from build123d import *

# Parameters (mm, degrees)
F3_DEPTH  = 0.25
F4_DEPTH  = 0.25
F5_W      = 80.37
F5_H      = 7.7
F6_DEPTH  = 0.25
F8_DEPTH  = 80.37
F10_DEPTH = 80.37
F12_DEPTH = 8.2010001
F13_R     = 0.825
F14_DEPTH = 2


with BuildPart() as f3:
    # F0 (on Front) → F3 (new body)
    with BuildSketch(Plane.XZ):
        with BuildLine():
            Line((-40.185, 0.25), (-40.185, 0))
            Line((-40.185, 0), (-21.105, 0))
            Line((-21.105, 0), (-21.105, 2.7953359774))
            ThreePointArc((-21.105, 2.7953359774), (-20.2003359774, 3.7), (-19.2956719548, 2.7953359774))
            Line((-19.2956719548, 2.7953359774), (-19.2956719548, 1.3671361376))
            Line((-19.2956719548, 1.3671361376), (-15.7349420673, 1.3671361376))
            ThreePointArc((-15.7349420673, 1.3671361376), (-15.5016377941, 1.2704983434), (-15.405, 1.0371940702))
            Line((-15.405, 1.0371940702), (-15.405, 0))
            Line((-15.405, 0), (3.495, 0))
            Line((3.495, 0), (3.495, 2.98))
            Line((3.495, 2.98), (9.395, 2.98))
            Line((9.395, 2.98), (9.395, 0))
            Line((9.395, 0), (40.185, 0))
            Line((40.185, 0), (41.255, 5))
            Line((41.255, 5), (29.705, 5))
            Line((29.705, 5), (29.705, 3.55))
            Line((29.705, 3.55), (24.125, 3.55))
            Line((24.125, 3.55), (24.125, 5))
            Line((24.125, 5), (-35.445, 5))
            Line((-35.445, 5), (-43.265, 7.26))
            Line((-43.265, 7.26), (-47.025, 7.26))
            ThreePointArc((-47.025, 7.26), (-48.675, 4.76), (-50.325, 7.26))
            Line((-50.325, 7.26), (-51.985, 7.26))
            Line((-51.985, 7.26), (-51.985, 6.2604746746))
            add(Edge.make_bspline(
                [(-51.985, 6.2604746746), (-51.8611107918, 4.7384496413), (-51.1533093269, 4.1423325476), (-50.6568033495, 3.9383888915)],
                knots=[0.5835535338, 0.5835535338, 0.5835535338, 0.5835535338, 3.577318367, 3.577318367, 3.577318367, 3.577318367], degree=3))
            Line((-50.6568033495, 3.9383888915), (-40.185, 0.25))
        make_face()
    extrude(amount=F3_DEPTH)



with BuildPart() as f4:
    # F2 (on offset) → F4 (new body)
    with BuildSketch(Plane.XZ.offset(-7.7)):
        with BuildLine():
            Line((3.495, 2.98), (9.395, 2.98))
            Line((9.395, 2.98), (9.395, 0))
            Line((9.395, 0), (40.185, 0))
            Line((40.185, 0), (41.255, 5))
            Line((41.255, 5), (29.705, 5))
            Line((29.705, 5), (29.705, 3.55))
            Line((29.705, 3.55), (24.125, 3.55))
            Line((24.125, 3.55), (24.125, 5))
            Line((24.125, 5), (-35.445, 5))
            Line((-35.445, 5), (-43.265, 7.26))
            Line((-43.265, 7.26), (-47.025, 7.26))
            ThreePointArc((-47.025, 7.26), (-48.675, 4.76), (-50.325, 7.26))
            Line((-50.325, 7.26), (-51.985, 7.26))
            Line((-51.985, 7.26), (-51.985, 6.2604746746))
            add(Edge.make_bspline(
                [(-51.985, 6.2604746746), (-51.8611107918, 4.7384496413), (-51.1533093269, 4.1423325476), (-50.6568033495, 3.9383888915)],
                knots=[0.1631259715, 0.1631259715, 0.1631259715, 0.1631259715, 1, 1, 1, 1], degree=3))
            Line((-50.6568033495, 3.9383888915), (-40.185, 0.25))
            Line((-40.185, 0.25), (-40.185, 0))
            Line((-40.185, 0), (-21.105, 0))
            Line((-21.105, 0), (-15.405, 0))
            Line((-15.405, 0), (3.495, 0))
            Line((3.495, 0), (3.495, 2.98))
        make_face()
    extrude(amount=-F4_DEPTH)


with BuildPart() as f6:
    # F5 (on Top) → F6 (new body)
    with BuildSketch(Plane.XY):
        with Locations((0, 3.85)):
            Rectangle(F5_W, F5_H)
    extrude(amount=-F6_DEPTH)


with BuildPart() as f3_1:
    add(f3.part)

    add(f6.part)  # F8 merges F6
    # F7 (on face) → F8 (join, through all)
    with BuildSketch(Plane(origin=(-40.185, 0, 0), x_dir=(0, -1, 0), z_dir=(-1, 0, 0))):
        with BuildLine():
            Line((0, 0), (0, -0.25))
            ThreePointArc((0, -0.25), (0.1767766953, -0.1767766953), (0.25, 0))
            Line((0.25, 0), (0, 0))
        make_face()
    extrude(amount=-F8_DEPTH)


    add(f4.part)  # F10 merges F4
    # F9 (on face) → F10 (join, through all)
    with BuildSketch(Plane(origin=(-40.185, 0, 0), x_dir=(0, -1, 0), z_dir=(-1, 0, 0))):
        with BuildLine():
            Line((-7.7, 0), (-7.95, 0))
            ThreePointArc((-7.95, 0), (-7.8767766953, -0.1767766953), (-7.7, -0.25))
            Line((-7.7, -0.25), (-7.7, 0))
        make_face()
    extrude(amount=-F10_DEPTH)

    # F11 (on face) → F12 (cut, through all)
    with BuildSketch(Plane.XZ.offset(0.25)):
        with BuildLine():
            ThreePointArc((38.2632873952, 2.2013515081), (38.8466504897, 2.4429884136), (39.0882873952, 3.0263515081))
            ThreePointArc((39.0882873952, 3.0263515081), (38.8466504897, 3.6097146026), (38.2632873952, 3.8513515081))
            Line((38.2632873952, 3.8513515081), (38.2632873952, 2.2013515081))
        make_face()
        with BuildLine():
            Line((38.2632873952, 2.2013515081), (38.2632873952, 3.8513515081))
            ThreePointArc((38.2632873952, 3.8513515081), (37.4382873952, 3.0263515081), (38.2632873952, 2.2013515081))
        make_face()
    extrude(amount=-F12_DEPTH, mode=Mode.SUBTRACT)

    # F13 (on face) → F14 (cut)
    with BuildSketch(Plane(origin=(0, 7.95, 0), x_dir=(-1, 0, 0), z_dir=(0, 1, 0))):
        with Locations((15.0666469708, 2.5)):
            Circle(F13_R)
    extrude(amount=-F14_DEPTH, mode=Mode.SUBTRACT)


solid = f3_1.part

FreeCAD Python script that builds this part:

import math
import FreeCAD as App
import Part
import Sketcher
Q = App.Units.Quantity


def add_polygon(sketch, points):
    """Adds a closed chain of lines whose ends are joined by coincident constraints."""
    first, n = sketch.GeometryCount, len(points)
    for a, b in zip(points, points[1:] + points[:1]):
        sketch.addGeometry(Part.LineSegment(App.Vector(*a, 0), App.Vector(*b, 0)), False)
    for i in range(n):
        sketch.addConstraint(Sketcher.Constraint("Coincident", first + i, 2, first + (i + 1) % n, 1))

doc = App.newDocument("Part")
body = doc.addObject("PartDesign::Body", "Body")

# Sketch on XZ plane
sketch1 = body.newObject("Sketcher::SketchObject", "Sketch")
sketch1.AttachmentSupport = (doc.getObject("XZ_Plane"), [""])
sketch1.MapMode = "FlatFace"
sketch1.addGeometry(Part.LineSegment(App.Vector(-40.185, 0.25, 0), App.Vector(-40.185, 0, 0)), False)
sketch1.addGeometry(Part.LineSegment(App.Vector(-40.185, 0, 0), App.Vector(-21.105, 0, 0)), False)
sketch1.addGeometry(Part.LineSegment(App.Vector(-21.105, 0, 0), App.Vector(-21.105, 2.795336, 0)), False)
sketch1.addGeometry(Part.ArcOfCircle(Part.Circle(App.Vector(-20.200336, 2.795336, 0), App.Vector(0, 0, 1), 0.904664), math.radians(0), math.radians(180)), False)
sketch1.addGeometry(Part.LineSegment(App.Vector(-19.295672, 2.795336, 0), App.Vector(-19.295672, 1.367136, 0)), False)
sketch1.addGeometry(Part.LineSegment(App.Vector(-19.295672, 1.367136, 0), App.Vector(-15.734942, 1.367136, 0)), False)
sketch1.addGeometry(Part.ArcOfCircle(Part.Circle(App.Vector(-15.734942, 1.037194, 0), App.Vector(0, 0, 1), 0.329942), math.radians(0), math.radians(90)), False)
sketch1.addGeometry(Part.LineSegment(App.Vector(-15.405, 1.037194, 0), App.Vector(-15.405, 0, 0)), False)
sketch1.addGeometry(Part.LineSegment(App.Vector(-15.405, 0, 0), App.Vector(3.495, 0, 0)), False)
sketch1.addGeometry(Part.LineSegment(App.Vector(3.495, 0, 0), App.Vector(3.495, 2.98, 0)), False)
sketch1.addGeometry(Part.LineSegment(App.Vector(3.495, 2.98, 0), App.Vector(9.395, 2.98, 0)), False)
sketch1.addGeometry(Part.LineSegment(App.Vector(9.395, 2.98, 0), App.Vector(9.395, 0, 0)), False)
sketch1.addGeometry(Part.LineSegment(App.Vector(9.395, 0, 0), App.Vector(40.185, 0, 0)), False)
sketch1.addGeometry(Part.LineSegment(App.Vector(40.185, 0, 0), App.Vector(41.255, 5, 0)), False)
sketch1.addGeometry(Part.LineSegment(App.Vector(41.255, 5, 0), App.Vector(29.705, 5, 0)), False)
sketch1.addGeometry(Part.LineSegment(App.Vector(29.705, 5, 0), App.Vector(29.705, 3.55, 0)), False)
sketch1.addGeometry(Part.LineSegment(App.Vector(29.705, 3.55, 0), App.Vector(24.125, 3.55, 0)), False)
sketch1.addGeometry(Part.LineSegment(App.Vector(24.125, 3.55, 0), App.Vector(24.125, 5, 0)), False)
sketch1.addGeometry(Part.LineSegment(App.Vector(24.125, 5, 0), App.Vector(-35.445, 5, 0)), False)
sketch1.addGeometry(Part.LineSegment(App.Vector(-35.445, 5, 0), App.Vector(-43.265, 7.26, 0)), False)
sketch1.addGeometry(Part.LineSegment(App.Vector(-43.265, 7.26, 0), App.Vector(-47.025, 7.26, 0)), False)
sketch1.addGeometry(Part.ArcOfCircle(Part.Circle(App.Vector(-48.675, 6.5545, 0), App.Vector(0, 0, 1), 1.7945), math.radians(156.849622), math.radians(383.150378)), False)
sketch1.addGeometry(Part.LineSegment(App.Vector(-50.325, 7.26, 0), App.Vector(-51.985, 7.26, 0)), False)
sketch1.addGeometry(Part.LineSegment(App.Vector(-51.985, 7.26, 0), App.Vector(-51.985, 6.260475, 0)), False)
sketch1.addGeometry(Part.BSplineCurve([App.Vector(-51.985, 6.260475, 0), App.Vector(-51.861111, 4.73845, 0), App.Vector(-51.153309, 4.142333, 0), App.Vector(-50.656803, 3.938389, 0)], [4, 4], [0.583553534, 3.577318367], False, 3, [1, 1, 1, 1], False), False)
sketch1.addGeometry(Part.LineSegment(App.Vector(-50.656803, 3.938389, 0), App.Vector(-40.185, 0.25, 0)), False)
sketch1.addConstraint(Sketcher.Constraint("Block", 24))
sketch1.addConstraint(Sketcher.Constraint("Coincident", 0, 2, 1, 1))
sketch1.addConstraint(Sketcher.Constraint("Coincident", 1, 2, 2, 1))
sketch1.addConstraint(Sketcher.Constraint("Tangent", 2, 2, 3, 2))
sketch1.addConstraint(Sketcher.Constraint("Tangent", 3, 1, 4, 1))
sketch1.addConstraint(Sketcher.Constraint("Coincident", 4, 2, 5, 1))
sketch1.addConstraint(Sketcher.Constraint("Tangent", 5, 2, 6, 2))
sketch1.addConstraint(Sketcher.Constraint("Tangent", 6, 1, 7, 1))
sketch1.addConstraint(Sketcher.Constraint("Coincident", 7, 2, 8, 1))
sketch1.addConstraint(Sketcher.Constraint("Coincident", 8, 2, 9, 1))
sketch1.addConstraint(Sketcher.Constraint("Coincident", 9, 2, 10, 1))
sketch1.addConstraint(Sketcher.Constraint("Coincident", 10, 2, 11, 1))
sketch1.addConstraint(Sketcher.Constraint("Coincident", 11, 2, 12, 1))
sketch1.addConstraint(Sketcher.Constraint("Coincident", 12, 2, 13, 1))
sketch1.addConstraint(Sketcher.Constraint("Coincident", 13, 2, 14, 1))
sketch1.addConstraint(Sketcher.Constraint("Coincident", 14, 2, 15, 1))
sketch1.addConstraint(Sketcher.Constraint("Coincident", 15, 2, 16, 1))
sketch1.addConstraint(Sketcher.Constraint("Coincident", 16, 2, 17, 1))
sketch1.addConstraint(Sketcher.Constraint("Coincident", 17, 2, 18, 1))
sketch1.addConstraint(Sketcher.Constraint("Coincident", 18, 2, 19, 1))
sketch1.addConstraint(Sketcher.Constraint("Coincident", 19, 2, 20, 1))
sketch1.addConstraint(Sketcher.Constraint("Coincident", 20, 2, 21, 2))
sketch1.addConstraint(Sketcher.Constraint("Coincident", 21, 1, 22, 1))
sketch1.addConstraint(Sketcher.Constraint("Coincident", 22, 2, 23, 1))
sketch1.addConstraint(Sketcher.Constraint("Coincident", 23, 2, 24, 1))
sketch1.addConstraint(Sketcher.Constraint("Coincident", 24, 2, 25, 1))
sketch1.addConstraint(Sketcher.Constraint("Coincident", 25, 2, 0, 1))
sketch1.addConstraint(Sketcher.Constraint("Vertical", 0))
sketch1.addConstraint(Sketcher.Constraint("Horizontal", 1))
sketch1.addConstraint(Sketcher.Constraint("Vertical", 2))
sketch1.addConstraint(Sketcher.Constraint("Vertical", 4))
sketch1.addConstraint(Sketcher.Constraint("Horizontal", 5))
sketch1.addConstraint(Sketcher.Constraint("Vertical", 7))
sketch1.addConstraint(Sketcher.Constraint("Horizontal", 8))
sketch1.addConstraint(Sketcher.Constraint("Vertical", 9))
sketch1.addConstraint(Sketcher.Constraint("Horizontal", 10))
sketch1.addConstraint(Sketcher.Constraint("Vertical", 11))
sketch1.addConstraint(Sketcher.Constraint("Horizontal", 12))
sketch1.addConstraint(Sketcher.Constraint("Horizontal", 14))
sketch1.addConstraint(Sketcher.Constraint("Vertical", 15))
sketch1.addConstraint(Sketcher.Constraint("Horizontal", 16))
sketch1.addConstraint(Sketcher.Constraint("Vertical", 17))
sketch1.addConstraint(Sketcher.Constraint("Horizontal", 18))
sketch1.addConstraint(Sketcher.Constraint("Horizontal", 20))
sketch1.addConstraint(Sketcher.Constraint("Horizontal", 22))
sketch1.addConstraint(Sketcher.Constraint("Vertical", 23))
sketch1.addConstraint(Sketcher.Constraint("Symmetric", 0, 2, 12, 2, -1, 1))
sketch1.addConstraint(Sketcher.Constraint("PointOnObject", 0, 2, -1))
sketch1.addConstraint(Sketcher.Constraint("PointOnObject", 7, 2, -1))
sketch1.addConstraint(Sketcher.Constraint("Horizontal", 14, 2, 17, 2))
sketch1.addConstraint(Sketcher.Constraint("Horizontal", 20, 2, 21, 1))
sketch1.addConstraint(Sketcher.Constraint("DistanceX", 8, 1, 8, 2, Q("18.9 mm")))
sketch1.addConstraint(Sketcher.Constraint("DistanceX", 10, 1, 10, 2, Q("5.9 mm")))
sketch1.addConstraint(Sketcher.Constraint("DistanceY", -1, 1, 13, 2, Q("5 mm")))
sketch1.addConstraint(Sketcher.Constraint("DistanceX", 1, 1, 1, 2, Q("19.08 mm")))
sketch1.addConstraint(Sketcher.Constraint("DistanceX", 12, 1, 12, 2, Q("30.79 mm")))
sketch1.addConstraint(Sketcher.Constraint("DistanceX", 14, 2, 14, 1, Q("11.55 mm")))
sketch1.addConstraint(Sketcher.Constraint("DistanceX", 16, 2, 16, 1, Q("5.58 mm")))
sketch1.addConstraint(Sketcher.Constraint("DistanceX", 18, 2, 18, 1, Q("59.57 mm")))
sketch1.addConstraint(Sketcher.Constraint("DistanceX", 20, 2, 20, 1, Q("3.76 mm")))
sketch1.addConstraint(Sketcher.Constraint("DistanceX", 22, 2, 22, 1, Q("1.66 mm")))
sketch1.addConstraint(Sketcher.Constraint("DistanceY", 0, 2, 0, 1, Q("0.25 mm")))
sketch1.addConstraint(Sketcher.Constraint("DistanceY", 9, 1, 9, 2, Q("2.98 mm")))
sketch1.addConstraint(Sketcher.Constraint("DistanceY", 15, 2, 15, 1, Q("1.45 mm")))
sketch1.addConstraint(Sketcher.Constraint("Radius", 21, Q("1.7945 mm")))
sketch1.addConstraint(Sketcher.Constraint("DistanceX", 21, 1, 20, 2, Q("3.3 mm")))
sketch1.addConstraint(Sketcher.Constraint("DistanceX", 22, 2, 0, 2, Q("11.8 mm")))
sketch1.addConstraint(Sketcher.Constraint("DistanceY", -1, 1, 19, 2, Q("7.26 mm")))
sketch1.addConstraint(Sketcher.Constraint("DistanceX", 12, 2, 13, 2, Q("1.07 mm")))
sketch1.addConstraint(Sketcher.Constraint("DistanceY", 4, 2, 4, 1, Q("1.4282 mm")))
sketch1.addConstraint(Sketcher.Constraint("Radius", 3, Q("0.904664 mm")))
sketch1.addConstraint(Sketcher.Constraint("Radius", 6, Q("0.329942 mm")))
sketch1.addConstraint(Sketcher.Constraint("DistanceY", 2, 1, 2, 2, Q("2.795336 mm")))
pad1 = body.newObject("PartDesign::Pad", "Pad")
pad1.Profile = sketch1
pad1.Length = 0.25
body2 = doc.addObject("PartDesign::Body", "Body001")

# Sketch on XZ plane
sketch2 = body2.newObject("Sketcher::SketchObject", "Sketch001")
sketch2.AttachmentSupport = (doc.getObject("XZ_Plane001"), [""])
sketch2.MapMode = "FlatFace"
sketch2.AttachmentOffset = App.Placement(App.Vector(0, 0, -7.7), App.Rotation())
sketch2.addGeometry(Part.LineSegment(App.Vector(3.495, 2.98, 0), App.Vector(9.395, 2.98, 0)), False)
sketch2.addGeometry(Part.LineSegment(App.Vector(9.395, 2.98, 0), App.Vector(9.395, 0, 0)), False)
sketch2.addGeometry(Part.LineSegment(App.Vector(9.395, 0, 0), App.Vector(40.185, 0, 0)), False)
sketch2.addGeometry(Part.LineSegment(App.Vector(40.185, 0, 0), App.Vector(41.255, 5, 0)), False)
sketch2.addGeometry(Part.LineSegment(App.Vector(41.255, 5, 0), App.Vector(29.705, 5, 0)), False)
sketch2.addGeometry(Part.LineSegment(App.Vector(29.705, 5, 0), App.Vector(29.705, 3.55, 0)), False)
sketch2.addGeometry(Part.LineSegment(App.Vector(29.705, 3.55, 0), App.Vector(24.125, 3.55, 0)), False)
sketch2.addGeometry(Part.LineSegment(App.Vector(24.125, 3.55, 0), App.Vector(24.125, 5, 0)), False)
sketch2.addGeometry(Part.LineSegment(App.Vector(24.125, 5, 0), App.Vector(-35.445, 5, 0)), False)
sketch2.addGeometry(Part.LineSegment(App.Vector(-35.445, 5, 0), App.Vector(-43.265, 7.26, 0)), False)
sketch2.addGeometry(Part.LineSegment(App.Vector(-43.265, 7.26, 0), App.Vector(-47.025, 7.26, 0)), False)
sketch2.addGeometry(Part.ArcOfCircle(Part.Circle(App.Vector(-48.675, 6.5545, 0), App.Vector(0, 0, 1), 1.7945), math.radians(156.849622), math.radians(383.150378)), False)
sketch2.addGeometry(Part.LineSegment(App.Vector(-50.325, 7.26, 0), App.Vector(-51.985, 7.26, 0)), False)
sketch2.addGeometry(Part.LineSegment(App.Vector(-51.985, 7.26, 0), App.Vector(-51.985, 6.260475, 0)), False)
sketch2.addGeometry(Part.BSplineCurve([App.Vector(-51.985, 6.260475, 0), App.Vector(-51.861111, 4.73845, 0), App.Vector(-51.153309, 4.142333, 0), App.Vector(-50.656803, 3.938389, 0)], [4, 4], [0.163125971, 1], False, 3, [1, 1, 1, 1], False), False)
sketch2.addGeometry(Part.LineSegment(App.Vector(-50.656803, 3.938389, 0), App.Vector(-40.185, 0.25, 0)), False)
sketch2.addGeometry(Part.LineSegment(App.Vector(-40.185, 0.25, 0), App.Vector(-40.185, 0, 0)), False)
sketch2.addGeometry(Part.LineSegment(App.Vector(-40.185, 0, 0), App.Vector(3.495, 0, 0)), False)
sketch2.addGeometry(Part.LineSegment(App.Vector(3.495, 0, 0), App.Vector(3.495, 2.98, 0)), False)
sketch2.addConstraint(Sketcher.Constraint("Block", 14))
sketch2.addConstraint(Sketcher.Constraint("Coincident", 0, 2, 1, 1))
sketch2.addConstraint(Sketcher.Constraint("Coincident", 1, 2, 2, 1))
sketch2.addConstraint(Sketcher.Constraint("Coincident", 2, 2, 3, 1))
sketch2.addConstraint(Sketcher.Constraint("Coincident", 3, 2, 4, 1))
sketch2.addConstraint(Sketcher.Constraint("Coincident", 4, 2, 5, 1))
sketch2.addConstraint(Sketcher.Constraint("Coincident", 5, 2, 6, 1))
sketch2.addConstraint(Sketcher.Constraint("Coincident", 6, 2, 7, 1))
sketch2.addConstraint(Sketcher.Constraint("Coincident", 7, 2, 8, 1))
sketch2.addConstraint(Sketcher.Constraint("Coincident", 8, 2, 9, 1))
sketch2.addConstraint(Sketcher.Constraint("Coincident", 9, 2, 10, 1))
sketch2.addConstraint(Sketcher.Constraint("Coincident", 10, 2, 11, 2))
sketch2.addConstraint(Sketcher.Constraint("Coincident", 11, 1, 12, 1))
sketch2.addConstraint(Sketcher.Constraint("Coincident", 12, 2, 13, 1))
sketch2.addConstraint(Sketcher.Constraint("Coincident", 13, 2, 14, 1))
sketch2.addConstraint(Sketcher.Constraint("Coincident", 14, 2, 15, 1))
sketch2.addConstraint(Sketcher.Constraint("Coincident", 15, 2, 16, 1))
sketch2.addConstraint(Sketcher.Constraint("Coincident", 16, 2, 17, 1))
sketch2.addConstraint(Sketcher.Constraint("Coincident", 17, 2, 18, 1))
sketch2.addConstraint(Sketcher.Constraint("Coincident", 18, 2, 0, 1))
sketch2.addConstraint(Sketcher.Constraint("Horizontal", 0))
sketch2.addConstraint(Sketcher.Constraint("Vertical", 1))
sketch2.addConstraint(Sketcher.Constraint("Horizontal", 2))
sketch2.addConstraint(Sketcher.Constraint("Horizontal", 4))
sketch2.addConstraint(Sketcher.Constraint("Vertical", 5))
sketch2.addConstraint(Sketcher.Constraint("Horizontal", 6))
sketch2.addConstraint(Sketcher.Constraint("Vertical", 7))
sketch2.addConstraint(Sketcher.Constraint("Horizontal", 8))
sketch2.addConstraint(Sketcher.Constraint("Horizontal", 10))
sketch2.addConstraint(Sketcher.Constraint("Horizontal", 12))
sketch2.addConstraint(Sketcher.Constraint("Vertical", 13))
sketch2.addConstraint(Sketcher.Constraint("Vertical", 16))
sketch2.addConstraint(Sketcher.Constraint("Horizontal", 17))
sketch2.addConstraint(Sketcher.Constraint("Vertical", 18))
sketch2.addConstraint(Sketcher.Constraint("Symmetric", 2, 2, 16, 2, -1, 1))
sketch2.addConstraint(Sketcher.Constraint("PointOnObject", 1, 2, -1))
sketch2.addConstraint(Sketcher.Constraint("Horizontal", 4, 2, 7, 2))
sketch2.addConstraint(Sketcher.Constraint("Horizontal", 10, 2, 11, 1))
sketch2.addConstraint(Sketcher.Constraint("DistanceX", 0, 1, 0, 2, Q("5.9 mm")))
sketch2.addConstraint(Sketcher.Constraint("DistanceY", -1, 1, 3, 2, Q("5 mm")))
sketch2.addConstraint(Sketcher.Constraint("DistanceX", 2, 1, 2, 2, Q("30.79 mm")))
sketch2.addConstraint(Sketcher.Constraint("DistanceX", 4, 2, 4, 1, Q("11.55 mm")))
sketch2.addConstraint(Sketcher.Constraint("DistanceX", 6, 2, 6, 1, Q("5.58 mm")))
sketch2.addConstraint(Sketcher.Constraint("DistanceX", 8, 2, 8, 1, Q("59.57 mm")))
sketch2.addConstraint(Sketcher.Constraint("DistanceX", 10, 2, 10, 1, Q("3.76 mm")))
sketch2.addConstraint(Sketcher.Constraint("DistanceX", 12, 2, 12, 1, Q("1.66 mm")))
sketch2.addConstraint(Sketcher.Constraint("DistanceX", 17, 1, 17, 2, Q("43.68 mm")))
sketch2.addConstraint(Sketcher.Constraint("DistanceY", 1, 2, 1, 1, Q("2.98 mm")))
sketch2.addConstraint(Sketcher.Constraint("DistanceY", 5, 2, 5, 1, Q("1.45 mm")))
sketch2.addConstraint(Sketcher.Constraint("DistanceY", 16, 2, 16, 1, Q("0.25 mm")))
sketch2.addConstraint(Sketcher.Constraint("Radius", 11, Q("1.7945 mm")))
sketch2.addConstraint(Sketcher.Constraint("DistanceX", 11, 1, 10, 2, Q("3.3 mm")))
sketch2.addConstraint(Sketcher.Constraint("DistanceY", -1, 1, 9, 2, Q("7.26 mm")))
sketch2.addConstraint(Sketcher.Constraint("DistanceX", 2, 2, 3, 2, Q("1.07 mm")))
pad2 = body2.newObject("PartDesign::Pad", "Pad001")
pad2.Profile = sketch2
pad2.Length = 0.25
pad2.Reversed = True
body3 = doc.addObject("PartDesign::Body", "Body002")

# Sketch on XY plane
sketch3 = body3.newObject("Sketcher::SketchObject", "Sketch002")
sketch3.AttachmentSupport = (doc.getObject("XY_Plane002"), [""])
sketch3.MapMode = "FlatFace"
add_polygon(sketch3, [(-40.185, 7.7), (-40.185, 0), (40.185, 0), (40.185, 7.7)])  # lines 0-3
sketch3.addConstraint(Sketcher.Constraint("Vertical", 0))
sketch3.addConstraint(Sketcher.Constraint("Horizontal", 1))
sketch3.addConstraint(Sketcher.Constraint("Vertical", 2))
sketch3.addConstraint(Sketcher.Constraint("Horizontal", 3))
sketch3.addConstraint(Sketcher.Constraint("Symmetric", 0, 2, 1, 2, -1, 1))
sketch3.addConstraint(Sketcher.Constraint("DistanceY", 0, 2, 0, 1, Q("7.7 mm")))
sketch3.addConstraint(Sketcher.Constraint("DistanceX", 1, 1, 1, 2, Q("80.37 mm")))
pad3 = body3.newObject("PartDesign::Pad", "Pad002")
pad3.Profile = sketch3
pad3.Length = 0.25
pad3.Reversed = True
body.AllowCompound = True
doc.recompute()

boolean = body.newObject("PartDesign::Boolean", "Boolean")
boolean.Type = "Fuse"
boolean.addObjects([body3])

# Sketch on YZ plane
sketch4 = body.newObject("Sketcher::SketchObject", "Sketch003")
sketch4.AttachmentSupport = (doc.getObject("YZ_Plane"), [""])
sketch4.MapMode = "FlatFace"
sketch4.AttachmentOffset = App.Placement(App.Vector(0, 0, -40.185), App.Rotation())
sketch4.addGeometry(Part.LineSegment(App.Vector(0, 0, 0), App.Vector(0, -0.25, 0)), False)
sketch4.addGeometry(Part.ArcOfCircle(Part.Circle(App.Vector(0, 0, 0), App.Vector(0, 0, 1), 0.25), math.radians(180), math.radians(270)), False)
sketch4.addGeometry(Part.LineSegment(App.Vector(-0.25, 0, 0), App.Vector(0, 0, 0)), False)
sketch4.addConstraint(Sketcher.Constraint("Coincident", 0, 2, 1, 2))
sketch4.addConstraint(Sketcher.Constraint("Coincident", 1, 1, 2, 1))
sketch4.addConstraint(Sketcher.Constraint("Coincident", 2, 2, 0, 1))
sketch4.addConstraint(Sketcher.Constraint("Vertical", 0))
sketch4.addConstraint(Sketcher.Constraint("Horizontal", 2))
sketch4.addConstraint(Sketcher.Constraint("Coincident", 1, 3, -1, 1))
sketch4.addConstraint(Sketcher.Constraint("Coincident", 2, 2, -1, 1))
sketch4.addConstraint(Sketcher.Constraint("Radius", 1, Q("0.25 mm")))
pad4 = body.newObject("PartDesign::Pad", "Pad003")
pad4.Profile = sketch4
pad4.Length = 80.37
doc.recompute()

boolean2 = body.newObject("PartDesign::Boolean", "Boolean001")
boolean2.Type = "Fuse"
boolean2.addObjects([body2])

# Sketch on YZ plane
sketch5 = body.newObject("Sketcher::SketchObject", "Sketch004")
sketch5.AttachmentSupport = (doc.getObject("YZ_Plane"), [""])
sketch5.MapMode = "FlatFace"
sketch5.AttachmentOffset = App.Placement(App.Vector(0, 0, -40.185), App.Rotation())
sketch5.addGeometry(Part.LineSegment(App.Vector(7.7, 0, 0), App.Vector(7.95, 0, 0)), False)
sketch5.addGeometry(Part.ArcOfCircle(Part.Circle(App.Vector(7.7, 0, 0), App.Vector(0, 0, 1), 0.25), math.radians(-90), math.radians(0)), False)
sketch5.addGeometry(Part.LineSegment(App.Vector(7.7, -0.25, 0), App.Vector(7.7, 0, 0)), False)
sketch5.addConstraint(Sketcher.Constraint("Coincident", 0, 2, 1, 2))
sketch5.addConstraint(Sketcher.Constraint("Coincident", 1, 1, 2, 1))
sketch5.addConstraint(Sketcher.Constraint("Coincident", 2, 2, 0, 1))
sketch5.addConstraint(Sketcher.Constraint("Horizontal", 0))
sketch5.addConstraint(Sketcher.Constraint("Vertical", 2))
sketch5.addConstraint(Sketcher.Constraint("Coincident", 2, 2, 1, 3))
sketch5.addConstraint(Sketcher.Constraint("PointOnObject", 1, 3, -1))
sketch5.addConstraint(Sketcher.Constraint("Radius", 1, Q("0.25 mm")))
sketch5.addConstraint(Sketcher.Constraint("DistanceX", -1, 1, 1, 3, Q("7.7 mm")))
pad5 = body.newObject("PartDesign::Pad", "Pad004")
pad5.Profile = sketch5
pad5.Length = 80.37

# Sketch on XZ plane
sketch6 = body.newObject("Sketcher::SketchObject", "Sketch005")
sketch6.AttachmentSupport = (doc.getObject("XZ_Plane"), [""])
sketch6.MapMode = "FlatFace"
sketch6.AttachmentOffset = App.Placement(App.Vector(0, 0, 0.25), App.Rotation())
sketch6.addGeometry(Part.ArcOfCircle(Part.Circle(App.Vector(38.263287, 3.026352, 0), App.Vector(0, 0, 1), 0.825), math.radians(-90), math.radians(0)), False)
sketch6.addGeometry(Part.ArcOfCircle(Part.Circle(App.Vector(38.263287, 3.026352, 0), App.Vector(0, 0, 1), 0.825), math.radians(0), math.radians(90)), False)
sketch6.addGeometry(Part.ArcOfCircle(Part.Circle(App.Vector(38.263287, 3.026352, 0), App.Vector(0, 0, 1), 0.825), math.radians(90), math.radians(270)), False)
sketch6.addConstraint(Sketcher.Constraint("Tangent", 0, 2, 1, 1))
sketch6.addConstraint(Sketcher.Constraint("Tangent", 1, 2, 2, 1))
sketch6.addConstraint(Sketcher.Constraint("Tangent", 2, 2, 0, 1))
sketch6.addConstraint(Sketcher.Constraint("Horizontal", 2, 3, 0, 2))
sketch6.addConstraint(Sketcher.Constraint("Vertical", 2, 3, 1, 2))
sketch6.addConstraint(Sketcher.Constraint("Vertical", 1, 2, 2, 2))
sketch6.addConstraint(Sketcher.Constraint("Radius", 0, Q("0.825 mm")))
sketch6.addConstraint(Sketcher.Constraint("DistanceY", -1, 1, 0, 3, Q("3.026352 mm")))
sketch6.addConstraint(Sketcher.Constraint("DistanceX", -1, 1, 0, 3, Q("38.263287 mm")))
pocket1 = body.newObject("PartDesign::Pocket", "Pocket")
pocket1.Profile = sketch6
pocket1.Type = "ThroughAll"

# Sketch on XZ plane
sketch7 = body.newObject("Sketcher::SketchObject", "Sketch006")
sketch7.AttachmentSupport = (doc.getObject("XZ_Plane"), [""])
sketch7.MapMode = "FlatFace"
sketch7.AttachmentOffset = App.Placement(App.Vector(0, 0, -7.95), App.Rotation())
sketch7.addGeometry(Part.Circle(App.Vector(-15.066647, 2.5, 0), App.Vector(0, 0, 1), 0.825), False)
sketch7.addConstraint(Sketcher.Constraint("Diameter", 0, Q("1.65 mm")))
sketch7.addConstraint(Sketcher.Constraint("DistanceY", -1, 1, 0, 3, Q("2.5 mm")))
sketch7.addConstraint(Sketcher.Constraint("DistanceX", 0, 3, -1, 1, Q("15.066647 mm")))
pocket2 = body.newObject("PartDesign::Pocket", "Pocket001")
pocket2.Profile = sketch7
pocket2.Length = 2
pocket2.Reversed = True

doc.recompute()
